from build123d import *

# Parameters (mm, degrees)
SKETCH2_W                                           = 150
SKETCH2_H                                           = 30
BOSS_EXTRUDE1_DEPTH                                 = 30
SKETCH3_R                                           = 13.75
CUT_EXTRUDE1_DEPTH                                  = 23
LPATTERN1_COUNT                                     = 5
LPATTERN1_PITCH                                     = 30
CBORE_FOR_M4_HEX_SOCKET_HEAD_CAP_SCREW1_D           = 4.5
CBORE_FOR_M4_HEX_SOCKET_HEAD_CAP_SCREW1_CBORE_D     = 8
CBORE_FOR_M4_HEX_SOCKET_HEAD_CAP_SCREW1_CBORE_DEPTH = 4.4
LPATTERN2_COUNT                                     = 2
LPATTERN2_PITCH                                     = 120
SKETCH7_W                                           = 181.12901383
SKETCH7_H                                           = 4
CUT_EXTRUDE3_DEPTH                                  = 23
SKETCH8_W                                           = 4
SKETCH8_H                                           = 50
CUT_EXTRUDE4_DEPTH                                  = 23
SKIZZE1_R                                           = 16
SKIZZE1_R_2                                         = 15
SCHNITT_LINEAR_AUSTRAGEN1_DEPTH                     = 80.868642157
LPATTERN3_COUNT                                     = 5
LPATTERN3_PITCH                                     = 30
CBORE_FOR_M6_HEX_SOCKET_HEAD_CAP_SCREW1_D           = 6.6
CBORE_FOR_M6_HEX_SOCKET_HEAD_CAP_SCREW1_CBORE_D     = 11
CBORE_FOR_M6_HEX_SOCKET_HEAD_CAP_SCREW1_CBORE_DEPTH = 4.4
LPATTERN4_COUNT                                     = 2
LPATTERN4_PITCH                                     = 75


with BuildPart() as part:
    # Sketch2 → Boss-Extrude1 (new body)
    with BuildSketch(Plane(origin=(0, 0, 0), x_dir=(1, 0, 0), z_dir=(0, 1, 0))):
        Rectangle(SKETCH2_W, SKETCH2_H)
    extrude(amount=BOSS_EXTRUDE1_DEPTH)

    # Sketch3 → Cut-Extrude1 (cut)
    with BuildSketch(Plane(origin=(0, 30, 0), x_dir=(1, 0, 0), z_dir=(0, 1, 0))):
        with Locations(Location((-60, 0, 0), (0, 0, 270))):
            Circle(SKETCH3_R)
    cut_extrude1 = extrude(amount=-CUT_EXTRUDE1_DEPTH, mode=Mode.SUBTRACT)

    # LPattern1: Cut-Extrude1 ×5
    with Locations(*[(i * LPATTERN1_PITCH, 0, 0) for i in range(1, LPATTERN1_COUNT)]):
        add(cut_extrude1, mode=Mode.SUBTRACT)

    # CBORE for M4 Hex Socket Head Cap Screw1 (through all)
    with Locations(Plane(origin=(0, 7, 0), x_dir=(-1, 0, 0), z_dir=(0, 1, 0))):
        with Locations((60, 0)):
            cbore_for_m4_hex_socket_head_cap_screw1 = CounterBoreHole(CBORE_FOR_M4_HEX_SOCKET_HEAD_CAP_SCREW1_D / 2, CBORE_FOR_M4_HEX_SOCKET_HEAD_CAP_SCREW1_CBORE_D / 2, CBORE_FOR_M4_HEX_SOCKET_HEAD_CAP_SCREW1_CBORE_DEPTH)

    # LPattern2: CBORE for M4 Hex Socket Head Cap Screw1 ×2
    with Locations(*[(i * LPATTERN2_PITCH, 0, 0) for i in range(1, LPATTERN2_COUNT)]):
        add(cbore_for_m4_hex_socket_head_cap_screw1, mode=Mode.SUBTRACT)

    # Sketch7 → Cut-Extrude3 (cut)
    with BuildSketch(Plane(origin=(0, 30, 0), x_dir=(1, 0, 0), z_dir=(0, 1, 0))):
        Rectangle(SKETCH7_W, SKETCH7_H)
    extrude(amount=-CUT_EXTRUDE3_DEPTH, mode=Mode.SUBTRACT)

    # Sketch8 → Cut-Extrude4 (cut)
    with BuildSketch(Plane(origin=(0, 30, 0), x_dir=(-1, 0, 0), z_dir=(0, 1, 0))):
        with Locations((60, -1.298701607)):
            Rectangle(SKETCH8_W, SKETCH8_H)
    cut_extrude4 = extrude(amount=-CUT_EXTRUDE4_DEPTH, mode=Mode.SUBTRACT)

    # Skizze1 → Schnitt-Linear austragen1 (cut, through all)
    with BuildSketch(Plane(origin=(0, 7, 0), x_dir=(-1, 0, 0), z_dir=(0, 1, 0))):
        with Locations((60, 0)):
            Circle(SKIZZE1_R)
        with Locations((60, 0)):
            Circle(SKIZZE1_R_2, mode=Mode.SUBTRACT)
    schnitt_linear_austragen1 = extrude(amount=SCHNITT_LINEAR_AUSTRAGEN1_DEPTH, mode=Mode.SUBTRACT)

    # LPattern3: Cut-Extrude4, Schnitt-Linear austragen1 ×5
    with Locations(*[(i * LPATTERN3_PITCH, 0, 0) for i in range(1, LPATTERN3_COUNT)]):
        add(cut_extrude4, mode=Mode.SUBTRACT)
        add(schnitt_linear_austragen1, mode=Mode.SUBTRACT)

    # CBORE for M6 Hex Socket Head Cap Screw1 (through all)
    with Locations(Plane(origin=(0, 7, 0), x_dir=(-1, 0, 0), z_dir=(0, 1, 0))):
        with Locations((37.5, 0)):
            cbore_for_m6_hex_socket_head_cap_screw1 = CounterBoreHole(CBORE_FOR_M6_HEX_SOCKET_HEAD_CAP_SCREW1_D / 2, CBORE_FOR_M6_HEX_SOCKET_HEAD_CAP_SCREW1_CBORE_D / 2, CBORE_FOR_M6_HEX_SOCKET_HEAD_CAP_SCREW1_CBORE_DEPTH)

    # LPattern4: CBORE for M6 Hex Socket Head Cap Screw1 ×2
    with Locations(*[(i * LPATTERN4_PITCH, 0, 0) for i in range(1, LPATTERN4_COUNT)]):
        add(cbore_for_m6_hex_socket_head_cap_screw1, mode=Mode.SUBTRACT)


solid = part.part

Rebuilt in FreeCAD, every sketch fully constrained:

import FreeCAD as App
import Part
import Sketcher
Q = App.Units.Quantity


def add_polygon(sketch, points):
    """Adds a closed chain of lines whose ends are joined by coincident constraints."""
    first, n = sketch.GeometryCount, len(points)
    for a, b in zip(points, points[1:] + points[:1]):
        sketch.addGeometry(Part.LineSegment(App.Vector(*a, 0), App.Vector(*b, 0)), False)
    for i in range(n):
        sketch.addConstraint(Sketcher.Constraint("Coincident", first + i, 2, first + (i + 1) % n, 1))

doc = App.newDocument("Part")
body = doc.addObject("PartDesign::Body", "Body")

sketch1 = doc.addObject("Sketcher::SketchObject", "Sketch")
body.addObject(sketch1)
sketch1.AttachmentSupport = (doc.XZ_Plane, [""])
sketch1.MapMode = "FlatFace"
add_polygon(sketch1, [(-75, -15), (-75, 15), (75, 15), (75, -15)])
sketch1.addConstraint([
    Sketcher.Constraint("Vertical", 0),
    Sketcher.Constraint("Horizontal", 1),
    Sketcher.Constraint("Vertical", 2),
    Sketcher.Constraint("Horizontal", 3),
    Sketcher.Constraint("Symmetric", 0, 2, 2, 2, -1, 1),
    Sketcher.Constraint("DistanceX", 1, 1, 1, 2, Q("150 mm")),
    Sketcher.Constraint("DistanceY", 0, 1, 0, 2, Q("30 mm")),
])
pad1 = doc.addObject("PartDesign::Pad", "Pad")
body.addObject(pad1)
pad1.Profile = sketch1
pad1.Length = 30
pad1.Reversed = True

sketch2 = doc.addObject("Sketcher::SketchObject", "Sketch001")
body.addObject(sketch2)
sketch2.AttachmentSupport = (doc.XZ_Plane, [""])
sketch2.MapMode = "FlatFace"
sketch2.AttachmentOffset = App.Placement(App.Vector(0, 0, -30), App.Rotation())
sketch2.addGeometry(Part.Circle(App.Vector(-60, 0, 0), App.Vector(0, 0, 1), 14), False)
sketch2.addConstraint([
    Sketcher.Constraint("PointOnObject", 0, 3, -1),
    Sketcher.Constraint("Diameter", 0, Q("27.5 mm")),
    Sketcher.Constraint("DistanceX", 0, 3, -1, 1, Q("60 mm")),
])
pocket1 = doc.addObject("PartDesign::Pocket", "Pocket")
body.addObject(pocket1)
pocket1.Profile = sketch2
pocket1.Length = 23
pocket1.Reversed = True
doc.recompute()

linearpattern = doc.addObject("PartDesign::LinearPattern", "LinearPattern")
body.addObject(linearpattern)
linearpattern.Originals = [pocket1]
linearpattern.Direction = (doc.X_Axis, [""])
linearpattern.Mode = "offset"
linearpattern.Offset = 30
linearpattern.Occurrences = 5
body.Tip = linearpattern

sketch3 = doc.addObject("Sketcher::SketchObject", "Sketch002")
body.addObject(sketch3)
sketch3.AttachmentSupport = (doc.XZ_Plane, [""])
sketch3.MapMode = "FlatFace"
sketch3.AttachmentOffset = App.Placement(App.Vector(0, 0, -7), App.Rotation())
sketch3.addGeometry(Part.Circle(App.Vector(-60, 0, 0), App.Vector(0, 0, 1), 2.2), False)
sketch3.addConstraint([
    Sketcher.Constraint("PointOnObject", 0, 3, -1),
    Sketcher.Constraint("Diameter", 0, Q("4.5 mm")),
    Sketcher.Constraint("DistanceX", 0, 3, -1, 1, Q("60 mm")),
])
doc.recompute()
hole = doc.addObject("PartDesign::Hole", "Hole")
body.addObject(hole)
hole.Profile = sketch3
hole.ThreadType = "None"
hole.Diameter = 4.5
hole.DepthType = "ThroughAll"
hole.HoleCutType = "Counterbore"
hole.HoleCutDiameter = 8
hole.HoleCutDepth = 4.4
hole.Reversed = True
doc.recompute()

linearpattern2 = doc.addObject("PartDesign::LinearPattern", "LinearPattern001")
body.addObject(linearpattern2)
linearpattern2.Originals = [hole]
linearpattern2.Direction = (doc.X_Axis, [""])
linearpattern2.Mode = "offset"
linearpattern2.Offset = 120
linearpattern2.Occurrences = 2
body.Tip = linearpattern2

sketch4 = doc.addObject("Sketcher::SketchObject", "Sketch003")
body.addObject(sketch4)
sketch4.AttachmentSupport = (doc.XZ_Plane, [""])
sketch4.MapMode = "FlatFace"
sketch4.AttachmentOffset = App.Placement(App.Vector(0, 0, -30), App.Rotation())
add_polygon(sketch4, [(-90.6, -2), (-90.6, 2), (90.6, 2), (90.6, -2)])
sketch4.addConstraint([
    Sketcher.Constraint("Vertical", 0),
    Sketcher.Constraint("Horizontal", 1),
    Sketcher.Constraint("Vertical", 2),
    Sketcher.Constraint("Horizontal", 3),
    Sketcher.Constraint("Symmetric", 0, 2, 2, 2, -1, 1),
    Sketcher.Constraint("DistanceY", 0, 1, 0, 2, Q("4 mm")),
    Sketcher.Constraint("DistanceX", 1, 1, 1, 2, Q("181.129014 mm")),
])
pocket2 = doc.addObject("PartDesign::Pocket", "Pocket001")
body.addObject(pocket2)
pocket2.Profile = sketch4
pocket2.Length = 23
pocket2.Reversed = True

sketch5 = doc.addObject("Sketcher::SketchObject", "Sketch004")
body.addObject(sketch5)
sketch5.AttachmentSupport = (doc.XZ_Plane, [""])
sketch5.MapMode = "FlatFace"
sketch5.AttachmentOffset = App.Placement(App.Vector(0, 0, -30), App.Rotation())
add_polygon(sketch5, [(-58, 23.7), (-58, -26.3), (-62, -26.3), (-62, 23.7)])
sketch5.addConstraint([
    Sketcher.Constraint("Vertical", 0),
    Sketcher.Constraint("Horizontal", 1),
    Sketcher.Constraint("Vertical", 2),
    Sketcher.Constraint("Horizontal", 3),
    Sketcher.Constraint("DistanceX", 1, 2, 1, 1, Q("4 mm")),
    Sketcher.Constraint("DistanceY", 0, 2, 0, 1, Q("50 mm")),
    Sketcher.Constraint("DistanceX", 0, 2, -1, 1, Q("58 mm")),
    Sketcher.Constraint("DistanceY", 0, 2, -1, 1, Q("26.298702 mm")),
])
pocket3 = doc.addObject("PartDesign::Pocket", "Pocket002")
body.addObject(pocket3)
pocket3.Profile = sketch5
pocket3.Length = 23
pocket3.Reversed = True

sketch6 = doc.addObject("Sketcher::SketchObject", "Sketch005")
body.addObject(sketch6)
sketch6.AttachmentSupport = (doc.XZ_Plane, [""])
sketch6.MapMode = "FlatFace"
sketch6.AttachmentOffset = App.Placement(App.Vector(0, 0, -7), App.Rotation())
sketch6.addGeometry([
    Part.Circle(App.Vector(-60, 0, 0), App.Vector(0, 0, 1), 16),
    Part.Circle(App.Vector(-60, 0, 0), App.Vector(0, 0, 1), 15),
], False)
sketch6.addConstraint([
    Sketcher.Constraint("Coincident", 1, 3, 0, 3),
    Sketcher.Constraint("PointOnObject", 0, 3, -1),
    Sketcher.Constraint("Diameter", 0, Q("32 mm")),
    Sketcher.Constraint("Diameter", 1, Q("30 mm")),
    Sketcher.Constraint("DistanceX", 0, 3, -1, 1, Q("60 mm")),
])
pocket4 = doc.addObject("PartDesign::Pocket", "Pocket003")
body.addObject(pocket4)
pocket4.Profile = sketch6
pocket4.Type = "ThroughAll"
doc.recompute()

linearpattern3 = doc.addObject("PartDesign::LinearPattern", "LinearPattern002")
body.addObject(linearpattern3)
linearpattern3.Originals = [pocket3, pocket4]
linearpattern3.Direction = (doc.X_Axis, [""])
linearpattern3.Mode = "offset"
linearpattern3.Offset = 30
linearpattern3.Occurrences = 5
body.Tip = linearpattern3

sketch7 = doc.addObject("Sketcher::SketchObject", "Sketch006")
body.addObject(sketch7)
sketch7.AttachmentSupport = (doc.XZ_Plane, [""])
sketch7.MapMode = "FlatFace"
sketch7.AttachmentOffset = App.Placement(App.Vector(0, 0, -7), App.Rotation())
sketch7.addGeometry(Part.Circle(App.Vector(-37.5, 0, 0), App.Vector(0, 0, 1), 3.3), False)
sketch7.addConstraint([
    Sketcher.Constraint("PointOnObject", 0, 3, -1),
    Sketcher.Constraint("Diameter", 0, Q("6.6 mm")),
    Sketcher.Constraint("DistanceX", 0, 3, -1, 1, Q("37.5 mm")),
])
doc.recompute()
hole2 = doc.addObject("PartDesign::Hole", "Hole001")
body.addObject(hole2)
hole2.Profile = sketch7
hole2.ThreadType = "None"
hole2.Diameter = 6.6
hole2.DepthType = "ThroughAll"
hole2.HoleCutType = "Counterbore"
hole2.HoleCutDiameter = 11
hole2.HoleCutDepth = 4.4
hole2.Reversed = True
doc.recompute()

linearpattern4 = doc.addObject("PartDesign::LinearPattern", "LinearPattern003")
body.addObject(linearpattern4)
linearpattern4.Originals = [hole2]
linearpattern4.Direction = (doc.X_Axis, [""])
linearpattern4.Mode = "offset"
linearpattern4.Offset = 75
linearpattern4.Occurrences = 2
body.Tip = linearpattern4

doc.recompute()
